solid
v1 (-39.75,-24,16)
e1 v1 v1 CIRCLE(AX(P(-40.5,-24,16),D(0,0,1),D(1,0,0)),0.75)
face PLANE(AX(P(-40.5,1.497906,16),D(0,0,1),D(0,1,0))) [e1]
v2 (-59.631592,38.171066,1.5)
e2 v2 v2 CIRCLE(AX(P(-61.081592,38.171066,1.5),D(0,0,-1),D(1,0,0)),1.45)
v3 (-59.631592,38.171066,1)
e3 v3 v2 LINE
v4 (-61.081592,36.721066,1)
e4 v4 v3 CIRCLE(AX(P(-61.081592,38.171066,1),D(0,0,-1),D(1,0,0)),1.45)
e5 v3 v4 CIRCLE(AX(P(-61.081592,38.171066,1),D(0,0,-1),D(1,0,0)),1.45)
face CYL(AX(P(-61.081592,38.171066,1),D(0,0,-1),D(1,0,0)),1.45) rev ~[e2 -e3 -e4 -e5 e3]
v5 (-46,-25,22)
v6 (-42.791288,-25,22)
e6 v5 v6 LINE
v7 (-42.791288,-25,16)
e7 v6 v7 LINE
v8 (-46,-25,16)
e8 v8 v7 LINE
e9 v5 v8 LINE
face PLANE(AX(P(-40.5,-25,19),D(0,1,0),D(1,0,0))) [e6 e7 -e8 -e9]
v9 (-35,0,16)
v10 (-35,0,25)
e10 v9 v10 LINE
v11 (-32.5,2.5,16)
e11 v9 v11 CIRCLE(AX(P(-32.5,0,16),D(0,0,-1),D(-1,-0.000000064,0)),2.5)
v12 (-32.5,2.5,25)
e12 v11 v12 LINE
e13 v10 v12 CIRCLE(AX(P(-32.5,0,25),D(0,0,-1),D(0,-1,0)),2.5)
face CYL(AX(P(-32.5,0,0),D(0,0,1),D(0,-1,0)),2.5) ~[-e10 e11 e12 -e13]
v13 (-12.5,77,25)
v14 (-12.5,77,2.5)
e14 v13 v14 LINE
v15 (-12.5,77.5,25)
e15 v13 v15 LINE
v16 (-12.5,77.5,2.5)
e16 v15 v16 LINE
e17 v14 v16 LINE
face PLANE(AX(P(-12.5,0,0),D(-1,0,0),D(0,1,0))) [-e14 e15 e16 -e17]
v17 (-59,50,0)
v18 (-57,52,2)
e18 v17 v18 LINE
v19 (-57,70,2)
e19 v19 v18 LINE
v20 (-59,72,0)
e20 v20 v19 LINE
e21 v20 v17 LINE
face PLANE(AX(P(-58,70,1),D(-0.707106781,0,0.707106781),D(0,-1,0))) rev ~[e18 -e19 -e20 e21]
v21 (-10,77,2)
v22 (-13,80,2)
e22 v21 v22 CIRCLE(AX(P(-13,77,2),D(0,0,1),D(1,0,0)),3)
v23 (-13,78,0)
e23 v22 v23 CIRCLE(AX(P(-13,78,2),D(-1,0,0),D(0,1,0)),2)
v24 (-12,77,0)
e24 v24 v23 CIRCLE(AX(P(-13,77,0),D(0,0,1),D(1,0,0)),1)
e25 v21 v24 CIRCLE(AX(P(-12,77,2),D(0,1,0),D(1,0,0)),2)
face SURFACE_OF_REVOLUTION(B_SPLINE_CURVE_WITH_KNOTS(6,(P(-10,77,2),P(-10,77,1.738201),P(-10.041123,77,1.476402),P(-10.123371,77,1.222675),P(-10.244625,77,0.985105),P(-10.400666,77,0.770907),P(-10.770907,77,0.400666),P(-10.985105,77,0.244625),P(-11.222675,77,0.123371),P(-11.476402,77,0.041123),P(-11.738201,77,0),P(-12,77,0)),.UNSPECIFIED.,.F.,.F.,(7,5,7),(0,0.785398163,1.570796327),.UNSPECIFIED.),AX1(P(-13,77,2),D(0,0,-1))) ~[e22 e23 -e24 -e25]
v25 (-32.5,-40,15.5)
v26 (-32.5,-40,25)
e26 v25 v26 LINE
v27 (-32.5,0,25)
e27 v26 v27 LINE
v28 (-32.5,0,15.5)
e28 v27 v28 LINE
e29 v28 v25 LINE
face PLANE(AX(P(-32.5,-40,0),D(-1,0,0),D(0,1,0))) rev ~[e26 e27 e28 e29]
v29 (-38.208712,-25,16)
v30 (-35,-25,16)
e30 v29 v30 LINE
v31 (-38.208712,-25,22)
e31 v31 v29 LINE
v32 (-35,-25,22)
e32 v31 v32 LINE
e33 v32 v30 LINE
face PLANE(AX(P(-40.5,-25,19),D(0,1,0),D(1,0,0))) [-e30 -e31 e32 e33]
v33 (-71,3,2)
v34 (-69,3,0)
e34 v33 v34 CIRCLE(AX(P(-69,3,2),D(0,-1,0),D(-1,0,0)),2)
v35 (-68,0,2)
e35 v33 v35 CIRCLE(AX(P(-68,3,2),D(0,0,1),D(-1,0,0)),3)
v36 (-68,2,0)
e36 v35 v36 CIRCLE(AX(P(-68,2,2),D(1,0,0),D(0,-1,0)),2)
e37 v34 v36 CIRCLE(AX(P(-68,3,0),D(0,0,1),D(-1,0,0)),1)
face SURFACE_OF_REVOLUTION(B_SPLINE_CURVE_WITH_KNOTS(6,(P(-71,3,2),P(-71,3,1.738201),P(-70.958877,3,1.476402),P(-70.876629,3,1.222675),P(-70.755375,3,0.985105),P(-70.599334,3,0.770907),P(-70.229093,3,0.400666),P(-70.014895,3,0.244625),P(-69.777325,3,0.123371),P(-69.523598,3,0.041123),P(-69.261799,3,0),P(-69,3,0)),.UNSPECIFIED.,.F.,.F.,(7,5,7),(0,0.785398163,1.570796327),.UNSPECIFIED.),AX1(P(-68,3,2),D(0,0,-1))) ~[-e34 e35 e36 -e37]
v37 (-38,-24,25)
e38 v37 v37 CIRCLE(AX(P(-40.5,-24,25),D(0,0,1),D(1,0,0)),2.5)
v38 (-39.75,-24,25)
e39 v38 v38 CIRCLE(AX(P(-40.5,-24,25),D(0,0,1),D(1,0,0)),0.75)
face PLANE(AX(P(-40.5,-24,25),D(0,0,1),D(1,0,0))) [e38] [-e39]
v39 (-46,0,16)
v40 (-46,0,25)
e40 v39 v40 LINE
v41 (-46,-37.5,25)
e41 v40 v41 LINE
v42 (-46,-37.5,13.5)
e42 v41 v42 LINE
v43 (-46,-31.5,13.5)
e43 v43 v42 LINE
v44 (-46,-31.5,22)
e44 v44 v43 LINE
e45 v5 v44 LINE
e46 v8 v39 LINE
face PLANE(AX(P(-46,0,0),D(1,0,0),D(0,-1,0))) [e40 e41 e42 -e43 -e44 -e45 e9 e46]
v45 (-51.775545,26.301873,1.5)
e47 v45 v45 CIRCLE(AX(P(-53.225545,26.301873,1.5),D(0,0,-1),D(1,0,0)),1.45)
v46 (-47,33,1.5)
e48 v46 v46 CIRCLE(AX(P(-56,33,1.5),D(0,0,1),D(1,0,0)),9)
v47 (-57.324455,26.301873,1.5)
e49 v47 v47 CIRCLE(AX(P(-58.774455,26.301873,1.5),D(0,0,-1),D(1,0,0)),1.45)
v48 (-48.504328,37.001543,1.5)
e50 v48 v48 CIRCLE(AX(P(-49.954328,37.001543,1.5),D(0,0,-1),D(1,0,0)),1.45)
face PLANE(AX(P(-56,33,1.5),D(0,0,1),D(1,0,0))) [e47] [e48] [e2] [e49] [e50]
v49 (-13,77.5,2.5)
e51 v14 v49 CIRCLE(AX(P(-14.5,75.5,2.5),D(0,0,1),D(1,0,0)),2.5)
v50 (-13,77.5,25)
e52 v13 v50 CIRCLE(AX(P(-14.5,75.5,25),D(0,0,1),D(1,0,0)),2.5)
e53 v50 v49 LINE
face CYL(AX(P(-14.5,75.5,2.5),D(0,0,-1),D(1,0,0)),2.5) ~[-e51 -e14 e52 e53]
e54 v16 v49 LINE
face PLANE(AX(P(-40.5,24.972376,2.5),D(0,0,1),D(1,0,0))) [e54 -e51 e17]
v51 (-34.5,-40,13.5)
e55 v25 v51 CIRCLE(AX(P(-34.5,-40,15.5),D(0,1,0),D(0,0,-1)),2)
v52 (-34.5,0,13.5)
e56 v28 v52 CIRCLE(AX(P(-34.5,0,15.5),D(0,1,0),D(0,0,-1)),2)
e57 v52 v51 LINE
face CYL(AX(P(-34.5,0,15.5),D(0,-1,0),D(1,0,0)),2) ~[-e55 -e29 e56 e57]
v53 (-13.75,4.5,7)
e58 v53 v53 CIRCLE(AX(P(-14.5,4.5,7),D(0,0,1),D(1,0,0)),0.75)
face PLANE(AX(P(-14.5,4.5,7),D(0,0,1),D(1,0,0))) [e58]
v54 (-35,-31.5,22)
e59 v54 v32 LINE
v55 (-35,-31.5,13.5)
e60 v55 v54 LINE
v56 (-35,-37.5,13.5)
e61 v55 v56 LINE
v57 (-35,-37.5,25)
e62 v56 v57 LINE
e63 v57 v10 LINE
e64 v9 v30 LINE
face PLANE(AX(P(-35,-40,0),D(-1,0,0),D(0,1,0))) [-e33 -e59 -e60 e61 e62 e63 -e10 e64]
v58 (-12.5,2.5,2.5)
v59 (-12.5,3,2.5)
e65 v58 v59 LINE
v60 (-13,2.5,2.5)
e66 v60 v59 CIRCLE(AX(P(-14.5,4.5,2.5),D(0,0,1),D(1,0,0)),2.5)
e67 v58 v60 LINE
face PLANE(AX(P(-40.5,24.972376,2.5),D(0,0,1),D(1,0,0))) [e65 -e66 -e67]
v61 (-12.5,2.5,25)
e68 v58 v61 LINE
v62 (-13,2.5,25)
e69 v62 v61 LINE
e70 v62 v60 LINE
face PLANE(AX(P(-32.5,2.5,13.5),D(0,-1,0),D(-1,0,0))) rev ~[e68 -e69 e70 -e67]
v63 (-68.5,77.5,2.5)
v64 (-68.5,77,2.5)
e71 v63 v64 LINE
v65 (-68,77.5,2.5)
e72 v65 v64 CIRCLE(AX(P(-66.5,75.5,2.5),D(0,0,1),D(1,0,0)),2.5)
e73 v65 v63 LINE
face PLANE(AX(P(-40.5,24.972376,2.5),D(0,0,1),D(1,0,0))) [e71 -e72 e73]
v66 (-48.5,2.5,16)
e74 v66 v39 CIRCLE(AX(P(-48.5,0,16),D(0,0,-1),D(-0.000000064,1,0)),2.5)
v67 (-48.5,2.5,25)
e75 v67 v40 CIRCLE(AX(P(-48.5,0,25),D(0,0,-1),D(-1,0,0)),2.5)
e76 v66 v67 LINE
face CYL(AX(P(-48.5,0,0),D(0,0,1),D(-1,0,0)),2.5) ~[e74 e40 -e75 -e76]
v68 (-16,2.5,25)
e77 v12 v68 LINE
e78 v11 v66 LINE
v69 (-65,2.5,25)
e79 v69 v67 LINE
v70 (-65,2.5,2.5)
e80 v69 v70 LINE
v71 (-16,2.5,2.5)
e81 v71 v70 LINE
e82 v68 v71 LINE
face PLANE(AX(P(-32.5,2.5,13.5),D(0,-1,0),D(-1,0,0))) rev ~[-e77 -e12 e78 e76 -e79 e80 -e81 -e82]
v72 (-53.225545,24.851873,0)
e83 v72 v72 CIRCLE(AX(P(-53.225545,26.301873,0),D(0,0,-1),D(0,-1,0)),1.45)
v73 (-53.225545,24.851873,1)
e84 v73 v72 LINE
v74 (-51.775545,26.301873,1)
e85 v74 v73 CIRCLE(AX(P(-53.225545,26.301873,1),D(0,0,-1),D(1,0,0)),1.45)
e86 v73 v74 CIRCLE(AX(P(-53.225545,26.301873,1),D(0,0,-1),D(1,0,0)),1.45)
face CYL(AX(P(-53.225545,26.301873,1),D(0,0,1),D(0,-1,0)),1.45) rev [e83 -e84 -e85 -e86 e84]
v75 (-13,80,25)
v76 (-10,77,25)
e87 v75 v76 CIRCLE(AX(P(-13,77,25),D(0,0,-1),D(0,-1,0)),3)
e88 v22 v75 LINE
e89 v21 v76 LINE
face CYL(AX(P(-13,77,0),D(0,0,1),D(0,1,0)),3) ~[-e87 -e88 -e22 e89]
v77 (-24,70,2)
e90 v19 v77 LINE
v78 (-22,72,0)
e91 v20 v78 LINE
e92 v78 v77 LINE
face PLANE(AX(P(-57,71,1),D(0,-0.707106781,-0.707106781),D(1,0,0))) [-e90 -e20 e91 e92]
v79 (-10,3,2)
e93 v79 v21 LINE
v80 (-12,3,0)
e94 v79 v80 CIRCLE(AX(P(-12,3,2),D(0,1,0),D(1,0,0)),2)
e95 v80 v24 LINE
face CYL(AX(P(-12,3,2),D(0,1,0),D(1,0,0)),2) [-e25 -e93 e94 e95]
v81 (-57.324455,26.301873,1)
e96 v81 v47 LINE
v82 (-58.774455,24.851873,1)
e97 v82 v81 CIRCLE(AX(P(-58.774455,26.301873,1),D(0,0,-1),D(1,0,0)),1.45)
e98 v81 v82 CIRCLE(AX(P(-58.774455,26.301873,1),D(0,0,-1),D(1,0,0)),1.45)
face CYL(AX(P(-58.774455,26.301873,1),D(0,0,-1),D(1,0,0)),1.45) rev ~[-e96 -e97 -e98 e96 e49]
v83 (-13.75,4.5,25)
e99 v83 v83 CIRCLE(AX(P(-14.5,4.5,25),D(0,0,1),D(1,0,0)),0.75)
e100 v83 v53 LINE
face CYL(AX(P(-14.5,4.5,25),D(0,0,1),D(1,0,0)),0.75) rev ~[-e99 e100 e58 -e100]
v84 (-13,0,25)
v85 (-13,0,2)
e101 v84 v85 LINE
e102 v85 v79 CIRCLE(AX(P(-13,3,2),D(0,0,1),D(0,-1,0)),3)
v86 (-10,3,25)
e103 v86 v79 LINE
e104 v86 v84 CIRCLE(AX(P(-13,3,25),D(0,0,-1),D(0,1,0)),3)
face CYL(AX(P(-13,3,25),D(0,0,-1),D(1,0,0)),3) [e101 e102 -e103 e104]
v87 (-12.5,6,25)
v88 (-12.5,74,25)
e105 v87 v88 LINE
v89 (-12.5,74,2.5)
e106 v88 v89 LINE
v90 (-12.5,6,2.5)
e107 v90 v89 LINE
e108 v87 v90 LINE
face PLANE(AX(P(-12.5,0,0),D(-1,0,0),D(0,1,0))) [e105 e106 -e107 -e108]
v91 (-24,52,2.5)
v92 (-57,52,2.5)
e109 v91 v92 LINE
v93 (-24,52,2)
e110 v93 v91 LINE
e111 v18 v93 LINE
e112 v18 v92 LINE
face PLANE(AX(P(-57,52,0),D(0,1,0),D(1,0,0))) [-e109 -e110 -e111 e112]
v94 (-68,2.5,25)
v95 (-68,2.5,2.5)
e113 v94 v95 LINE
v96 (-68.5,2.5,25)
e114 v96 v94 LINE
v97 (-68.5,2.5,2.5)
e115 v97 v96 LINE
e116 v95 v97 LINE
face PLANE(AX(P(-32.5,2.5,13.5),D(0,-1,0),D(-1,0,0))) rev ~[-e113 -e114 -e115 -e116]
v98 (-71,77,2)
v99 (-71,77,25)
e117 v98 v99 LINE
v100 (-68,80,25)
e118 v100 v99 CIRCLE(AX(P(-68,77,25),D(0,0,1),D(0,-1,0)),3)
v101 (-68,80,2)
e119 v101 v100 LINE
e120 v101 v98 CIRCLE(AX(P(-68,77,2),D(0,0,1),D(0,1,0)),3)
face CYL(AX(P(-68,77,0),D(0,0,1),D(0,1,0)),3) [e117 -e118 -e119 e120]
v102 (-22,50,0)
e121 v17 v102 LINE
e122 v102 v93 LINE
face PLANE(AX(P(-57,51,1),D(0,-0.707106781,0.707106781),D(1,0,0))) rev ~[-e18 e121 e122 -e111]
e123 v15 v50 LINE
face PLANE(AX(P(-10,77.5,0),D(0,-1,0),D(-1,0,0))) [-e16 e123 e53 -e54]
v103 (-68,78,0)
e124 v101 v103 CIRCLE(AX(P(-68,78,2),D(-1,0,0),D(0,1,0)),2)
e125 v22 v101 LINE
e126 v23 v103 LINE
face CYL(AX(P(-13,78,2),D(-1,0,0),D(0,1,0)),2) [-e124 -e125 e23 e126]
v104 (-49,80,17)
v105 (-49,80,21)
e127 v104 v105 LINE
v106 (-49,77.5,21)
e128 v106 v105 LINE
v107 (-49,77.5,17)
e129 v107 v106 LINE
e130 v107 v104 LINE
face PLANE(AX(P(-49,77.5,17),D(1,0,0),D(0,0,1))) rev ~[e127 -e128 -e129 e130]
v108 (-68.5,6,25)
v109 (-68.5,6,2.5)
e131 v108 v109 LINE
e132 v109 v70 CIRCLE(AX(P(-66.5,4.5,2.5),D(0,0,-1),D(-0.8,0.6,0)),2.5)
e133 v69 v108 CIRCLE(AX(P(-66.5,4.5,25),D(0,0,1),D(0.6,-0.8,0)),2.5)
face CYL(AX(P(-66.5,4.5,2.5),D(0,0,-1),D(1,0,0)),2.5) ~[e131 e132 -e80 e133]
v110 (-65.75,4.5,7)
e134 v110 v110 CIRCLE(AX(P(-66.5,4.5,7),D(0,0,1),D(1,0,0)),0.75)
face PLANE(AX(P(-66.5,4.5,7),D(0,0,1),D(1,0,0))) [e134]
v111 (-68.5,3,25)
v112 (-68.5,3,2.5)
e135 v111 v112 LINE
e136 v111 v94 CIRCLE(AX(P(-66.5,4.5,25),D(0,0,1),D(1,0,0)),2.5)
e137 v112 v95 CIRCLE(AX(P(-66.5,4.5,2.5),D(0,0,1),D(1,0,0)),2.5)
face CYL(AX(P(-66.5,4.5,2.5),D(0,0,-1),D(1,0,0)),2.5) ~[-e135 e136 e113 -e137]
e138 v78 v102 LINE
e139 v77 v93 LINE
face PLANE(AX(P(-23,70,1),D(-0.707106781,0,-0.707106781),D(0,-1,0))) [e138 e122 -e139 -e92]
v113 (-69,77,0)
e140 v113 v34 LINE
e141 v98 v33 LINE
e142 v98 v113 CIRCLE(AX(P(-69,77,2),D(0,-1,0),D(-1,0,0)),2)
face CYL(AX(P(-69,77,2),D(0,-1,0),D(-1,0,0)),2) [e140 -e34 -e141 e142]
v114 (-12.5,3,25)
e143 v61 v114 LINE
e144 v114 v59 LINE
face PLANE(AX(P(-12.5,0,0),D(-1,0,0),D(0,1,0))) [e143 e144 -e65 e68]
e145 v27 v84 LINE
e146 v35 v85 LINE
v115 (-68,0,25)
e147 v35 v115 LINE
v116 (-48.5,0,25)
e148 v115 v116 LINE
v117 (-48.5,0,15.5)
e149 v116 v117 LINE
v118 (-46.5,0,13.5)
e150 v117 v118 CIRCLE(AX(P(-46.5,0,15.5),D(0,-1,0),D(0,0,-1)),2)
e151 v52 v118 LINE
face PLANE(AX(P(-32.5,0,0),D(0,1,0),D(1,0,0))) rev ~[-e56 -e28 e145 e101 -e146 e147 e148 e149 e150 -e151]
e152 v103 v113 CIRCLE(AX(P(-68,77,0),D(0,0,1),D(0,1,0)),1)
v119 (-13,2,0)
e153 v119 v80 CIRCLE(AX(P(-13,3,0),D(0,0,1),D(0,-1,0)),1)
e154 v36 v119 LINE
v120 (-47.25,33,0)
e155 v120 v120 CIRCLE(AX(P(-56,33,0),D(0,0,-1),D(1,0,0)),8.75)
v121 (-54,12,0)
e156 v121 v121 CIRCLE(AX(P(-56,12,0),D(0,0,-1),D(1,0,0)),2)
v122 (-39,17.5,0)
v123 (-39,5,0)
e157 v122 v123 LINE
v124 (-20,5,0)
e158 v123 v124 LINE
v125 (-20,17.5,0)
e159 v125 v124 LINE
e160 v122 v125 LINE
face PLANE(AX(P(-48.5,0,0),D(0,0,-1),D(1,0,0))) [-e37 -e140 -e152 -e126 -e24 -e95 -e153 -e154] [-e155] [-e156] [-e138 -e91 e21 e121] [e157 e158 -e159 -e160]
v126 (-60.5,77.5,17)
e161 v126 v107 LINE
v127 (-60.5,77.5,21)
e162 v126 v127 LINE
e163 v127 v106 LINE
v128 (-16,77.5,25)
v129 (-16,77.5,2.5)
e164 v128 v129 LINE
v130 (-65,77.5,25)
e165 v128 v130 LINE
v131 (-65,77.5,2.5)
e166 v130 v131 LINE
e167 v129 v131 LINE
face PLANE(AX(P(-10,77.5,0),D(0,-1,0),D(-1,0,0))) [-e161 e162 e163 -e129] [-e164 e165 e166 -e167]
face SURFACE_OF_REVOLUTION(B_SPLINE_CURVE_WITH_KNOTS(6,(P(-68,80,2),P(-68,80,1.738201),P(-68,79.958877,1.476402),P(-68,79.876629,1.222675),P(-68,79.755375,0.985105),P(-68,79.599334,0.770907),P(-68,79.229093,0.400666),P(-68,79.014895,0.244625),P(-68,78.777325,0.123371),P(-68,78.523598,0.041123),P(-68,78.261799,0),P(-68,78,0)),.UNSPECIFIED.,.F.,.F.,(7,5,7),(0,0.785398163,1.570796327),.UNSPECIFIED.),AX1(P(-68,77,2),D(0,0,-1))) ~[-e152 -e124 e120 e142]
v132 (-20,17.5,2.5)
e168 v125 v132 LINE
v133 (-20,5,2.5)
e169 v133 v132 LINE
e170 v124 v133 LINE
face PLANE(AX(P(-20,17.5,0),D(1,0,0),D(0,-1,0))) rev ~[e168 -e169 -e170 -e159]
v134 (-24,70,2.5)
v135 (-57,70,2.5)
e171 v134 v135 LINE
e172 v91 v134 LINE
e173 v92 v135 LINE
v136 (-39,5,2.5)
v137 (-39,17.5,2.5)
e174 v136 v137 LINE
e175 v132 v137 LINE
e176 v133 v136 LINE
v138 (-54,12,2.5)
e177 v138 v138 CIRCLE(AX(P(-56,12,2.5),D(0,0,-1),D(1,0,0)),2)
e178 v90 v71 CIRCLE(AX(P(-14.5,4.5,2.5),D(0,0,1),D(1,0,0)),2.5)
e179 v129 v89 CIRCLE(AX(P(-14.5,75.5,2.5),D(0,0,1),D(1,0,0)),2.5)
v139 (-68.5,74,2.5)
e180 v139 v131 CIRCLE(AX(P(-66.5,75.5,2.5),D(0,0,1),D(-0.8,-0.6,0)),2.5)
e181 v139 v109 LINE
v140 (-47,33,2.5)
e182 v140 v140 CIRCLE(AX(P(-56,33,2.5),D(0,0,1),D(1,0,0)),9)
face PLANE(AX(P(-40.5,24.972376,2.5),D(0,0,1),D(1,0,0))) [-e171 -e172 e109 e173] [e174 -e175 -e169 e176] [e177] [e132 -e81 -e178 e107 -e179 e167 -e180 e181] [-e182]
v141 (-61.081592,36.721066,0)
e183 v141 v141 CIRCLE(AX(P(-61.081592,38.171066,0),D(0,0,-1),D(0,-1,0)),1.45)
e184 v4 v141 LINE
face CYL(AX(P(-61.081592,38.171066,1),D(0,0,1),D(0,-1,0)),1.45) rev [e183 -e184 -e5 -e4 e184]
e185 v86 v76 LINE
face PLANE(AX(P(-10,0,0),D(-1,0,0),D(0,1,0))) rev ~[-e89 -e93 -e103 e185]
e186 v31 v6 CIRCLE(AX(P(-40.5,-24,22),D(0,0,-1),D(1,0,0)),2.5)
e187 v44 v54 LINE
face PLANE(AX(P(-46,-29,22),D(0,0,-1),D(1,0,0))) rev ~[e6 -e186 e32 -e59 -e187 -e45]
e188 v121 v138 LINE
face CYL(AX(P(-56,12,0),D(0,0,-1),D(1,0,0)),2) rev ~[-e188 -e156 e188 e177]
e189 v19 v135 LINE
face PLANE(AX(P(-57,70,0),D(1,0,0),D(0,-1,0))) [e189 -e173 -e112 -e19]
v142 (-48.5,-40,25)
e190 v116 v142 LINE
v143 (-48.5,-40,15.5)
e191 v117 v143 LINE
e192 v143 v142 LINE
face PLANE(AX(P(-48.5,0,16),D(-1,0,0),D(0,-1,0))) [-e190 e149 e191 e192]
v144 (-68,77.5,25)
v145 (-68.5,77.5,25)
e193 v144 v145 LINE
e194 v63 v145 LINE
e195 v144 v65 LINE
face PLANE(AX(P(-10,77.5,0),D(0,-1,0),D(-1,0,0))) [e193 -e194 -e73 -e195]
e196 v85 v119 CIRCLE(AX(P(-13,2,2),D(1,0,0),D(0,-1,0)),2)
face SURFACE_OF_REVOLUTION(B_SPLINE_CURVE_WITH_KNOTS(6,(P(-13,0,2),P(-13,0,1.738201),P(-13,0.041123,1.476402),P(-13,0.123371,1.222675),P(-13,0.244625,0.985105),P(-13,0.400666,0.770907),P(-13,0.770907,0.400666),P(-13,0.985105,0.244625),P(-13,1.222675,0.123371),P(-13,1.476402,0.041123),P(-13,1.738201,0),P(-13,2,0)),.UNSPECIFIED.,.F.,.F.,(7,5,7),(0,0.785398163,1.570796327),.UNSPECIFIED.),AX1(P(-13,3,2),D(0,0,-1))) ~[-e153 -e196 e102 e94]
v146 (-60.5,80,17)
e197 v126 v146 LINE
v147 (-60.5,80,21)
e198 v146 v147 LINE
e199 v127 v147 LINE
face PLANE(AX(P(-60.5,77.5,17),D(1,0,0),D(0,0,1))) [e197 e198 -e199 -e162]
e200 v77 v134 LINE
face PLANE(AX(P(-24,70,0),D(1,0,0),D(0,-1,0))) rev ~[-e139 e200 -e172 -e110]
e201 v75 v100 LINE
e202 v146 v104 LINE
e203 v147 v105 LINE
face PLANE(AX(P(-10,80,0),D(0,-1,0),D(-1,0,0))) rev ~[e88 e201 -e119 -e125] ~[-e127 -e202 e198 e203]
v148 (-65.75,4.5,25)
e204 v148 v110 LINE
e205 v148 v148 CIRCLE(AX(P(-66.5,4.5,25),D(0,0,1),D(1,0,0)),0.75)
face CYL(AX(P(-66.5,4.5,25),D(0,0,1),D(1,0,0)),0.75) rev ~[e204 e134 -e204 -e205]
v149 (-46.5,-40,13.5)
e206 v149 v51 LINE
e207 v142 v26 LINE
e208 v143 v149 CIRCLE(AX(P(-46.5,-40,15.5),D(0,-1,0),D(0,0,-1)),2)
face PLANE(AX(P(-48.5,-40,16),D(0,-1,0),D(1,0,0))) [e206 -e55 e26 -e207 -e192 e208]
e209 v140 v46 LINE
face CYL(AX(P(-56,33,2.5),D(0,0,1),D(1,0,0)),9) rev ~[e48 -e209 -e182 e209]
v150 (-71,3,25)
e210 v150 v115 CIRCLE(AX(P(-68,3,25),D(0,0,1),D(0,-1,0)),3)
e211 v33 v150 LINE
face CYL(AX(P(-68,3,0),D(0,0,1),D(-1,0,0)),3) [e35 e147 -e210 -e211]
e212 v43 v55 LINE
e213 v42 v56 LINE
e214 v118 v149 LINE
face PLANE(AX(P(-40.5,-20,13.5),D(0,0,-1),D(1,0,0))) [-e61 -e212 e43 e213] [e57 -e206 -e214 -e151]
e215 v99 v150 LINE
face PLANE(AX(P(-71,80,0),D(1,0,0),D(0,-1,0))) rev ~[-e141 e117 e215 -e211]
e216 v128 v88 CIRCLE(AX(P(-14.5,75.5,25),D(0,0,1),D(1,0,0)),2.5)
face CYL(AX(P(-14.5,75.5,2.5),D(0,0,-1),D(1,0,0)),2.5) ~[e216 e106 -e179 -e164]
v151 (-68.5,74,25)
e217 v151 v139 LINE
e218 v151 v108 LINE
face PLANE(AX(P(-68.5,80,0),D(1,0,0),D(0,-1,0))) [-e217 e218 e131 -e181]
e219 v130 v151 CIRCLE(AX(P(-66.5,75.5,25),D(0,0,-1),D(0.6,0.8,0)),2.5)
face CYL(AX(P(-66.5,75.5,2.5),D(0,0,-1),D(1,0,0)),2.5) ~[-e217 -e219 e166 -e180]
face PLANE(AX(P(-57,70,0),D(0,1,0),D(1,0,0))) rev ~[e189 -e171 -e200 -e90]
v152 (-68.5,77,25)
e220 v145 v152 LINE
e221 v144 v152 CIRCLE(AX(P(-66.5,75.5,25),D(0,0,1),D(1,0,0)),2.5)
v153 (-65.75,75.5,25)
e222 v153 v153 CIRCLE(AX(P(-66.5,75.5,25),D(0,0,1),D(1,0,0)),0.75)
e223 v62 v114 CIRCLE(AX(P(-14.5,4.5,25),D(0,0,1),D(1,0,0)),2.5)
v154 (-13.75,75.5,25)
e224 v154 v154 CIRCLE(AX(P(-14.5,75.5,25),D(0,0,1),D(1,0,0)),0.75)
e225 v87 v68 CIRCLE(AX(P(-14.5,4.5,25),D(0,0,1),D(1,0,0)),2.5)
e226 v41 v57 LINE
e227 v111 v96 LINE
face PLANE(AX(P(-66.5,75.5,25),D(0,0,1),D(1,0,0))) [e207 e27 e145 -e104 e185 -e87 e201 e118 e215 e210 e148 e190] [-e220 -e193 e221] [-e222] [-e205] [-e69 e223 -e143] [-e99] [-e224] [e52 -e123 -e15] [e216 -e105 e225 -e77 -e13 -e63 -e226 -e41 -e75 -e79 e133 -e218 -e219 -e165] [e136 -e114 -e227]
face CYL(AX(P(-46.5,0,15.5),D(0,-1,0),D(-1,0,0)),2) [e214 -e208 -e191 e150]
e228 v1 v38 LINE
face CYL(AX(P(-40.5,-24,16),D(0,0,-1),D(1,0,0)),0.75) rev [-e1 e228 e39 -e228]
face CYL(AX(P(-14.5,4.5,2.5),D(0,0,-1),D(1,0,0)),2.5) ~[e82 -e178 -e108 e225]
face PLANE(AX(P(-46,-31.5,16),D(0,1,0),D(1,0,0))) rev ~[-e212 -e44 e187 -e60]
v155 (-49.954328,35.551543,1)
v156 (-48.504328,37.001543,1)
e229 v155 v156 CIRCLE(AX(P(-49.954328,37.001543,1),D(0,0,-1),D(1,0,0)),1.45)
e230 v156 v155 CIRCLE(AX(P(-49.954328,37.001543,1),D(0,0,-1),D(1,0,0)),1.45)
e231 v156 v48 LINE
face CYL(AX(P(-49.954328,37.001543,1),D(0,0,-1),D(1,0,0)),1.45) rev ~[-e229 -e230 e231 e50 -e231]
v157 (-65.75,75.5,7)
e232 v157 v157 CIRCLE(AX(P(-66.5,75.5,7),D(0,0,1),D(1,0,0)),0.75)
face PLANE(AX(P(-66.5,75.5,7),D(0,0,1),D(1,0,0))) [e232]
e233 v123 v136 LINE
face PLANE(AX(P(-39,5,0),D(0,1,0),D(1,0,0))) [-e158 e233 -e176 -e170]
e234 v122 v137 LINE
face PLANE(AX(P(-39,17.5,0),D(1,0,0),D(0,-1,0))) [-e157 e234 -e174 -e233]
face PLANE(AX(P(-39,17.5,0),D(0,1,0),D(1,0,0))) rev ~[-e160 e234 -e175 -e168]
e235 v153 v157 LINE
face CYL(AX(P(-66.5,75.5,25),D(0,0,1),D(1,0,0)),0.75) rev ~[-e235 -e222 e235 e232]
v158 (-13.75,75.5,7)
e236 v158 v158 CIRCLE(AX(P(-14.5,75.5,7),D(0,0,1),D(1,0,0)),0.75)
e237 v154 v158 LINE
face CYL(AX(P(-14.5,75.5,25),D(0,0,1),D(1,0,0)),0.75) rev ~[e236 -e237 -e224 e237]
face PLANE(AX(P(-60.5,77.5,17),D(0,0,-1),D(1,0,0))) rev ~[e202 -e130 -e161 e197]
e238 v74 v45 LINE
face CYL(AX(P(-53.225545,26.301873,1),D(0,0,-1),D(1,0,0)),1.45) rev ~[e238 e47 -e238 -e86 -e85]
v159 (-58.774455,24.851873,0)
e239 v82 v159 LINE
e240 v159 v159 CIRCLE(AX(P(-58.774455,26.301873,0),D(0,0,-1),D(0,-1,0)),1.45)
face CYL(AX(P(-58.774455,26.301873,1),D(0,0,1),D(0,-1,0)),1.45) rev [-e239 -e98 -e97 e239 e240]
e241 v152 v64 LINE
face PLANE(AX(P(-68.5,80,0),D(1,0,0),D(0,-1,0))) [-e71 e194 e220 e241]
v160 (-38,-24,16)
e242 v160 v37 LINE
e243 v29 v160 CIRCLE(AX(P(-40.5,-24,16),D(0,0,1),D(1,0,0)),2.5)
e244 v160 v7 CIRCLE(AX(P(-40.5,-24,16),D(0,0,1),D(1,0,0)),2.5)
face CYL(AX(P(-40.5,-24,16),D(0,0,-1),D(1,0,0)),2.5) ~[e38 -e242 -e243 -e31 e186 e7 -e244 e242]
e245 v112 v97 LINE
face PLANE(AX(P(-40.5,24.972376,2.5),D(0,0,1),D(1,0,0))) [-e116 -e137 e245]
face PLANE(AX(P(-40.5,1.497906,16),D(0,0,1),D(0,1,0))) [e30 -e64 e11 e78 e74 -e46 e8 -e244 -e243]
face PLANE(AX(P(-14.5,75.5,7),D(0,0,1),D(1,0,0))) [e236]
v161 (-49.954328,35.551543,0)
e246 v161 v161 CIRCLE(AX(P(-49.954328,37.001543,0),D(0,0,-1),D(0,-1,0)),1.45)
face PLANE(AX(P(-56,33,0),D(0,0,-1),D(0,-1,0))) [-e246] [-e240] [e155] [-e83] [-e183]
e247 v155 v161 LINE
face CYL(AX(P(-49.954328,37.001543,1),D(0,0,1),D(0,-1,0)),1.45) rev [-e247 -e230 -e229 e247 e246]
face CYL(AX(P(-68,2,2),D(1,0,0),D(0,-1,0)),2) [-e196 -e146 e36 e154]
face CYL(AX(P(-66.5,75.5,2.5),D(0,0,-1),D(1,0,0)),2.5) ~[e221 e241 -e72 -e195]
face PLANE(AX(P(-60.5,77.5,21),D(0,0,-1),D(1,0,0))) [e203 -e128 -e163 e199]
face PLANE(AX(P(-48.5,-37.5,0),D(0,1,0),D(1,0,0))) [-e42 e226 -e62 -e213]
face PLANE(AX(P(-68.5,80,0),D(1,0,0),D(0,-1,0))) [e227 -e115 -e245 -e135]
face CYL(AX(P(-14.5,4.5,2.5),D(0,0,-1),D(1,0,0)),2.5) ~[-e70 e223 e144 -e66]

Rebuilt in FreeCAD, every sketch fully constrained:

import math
import FreeCAD as App
import Part
import Sketcher
from FreeCAD import Vector


def edges_at(feature, points):
    """Names of the edges that pass closest to the given points."""
    edges = feature.Shape.Edges
    near = lambda p: min(range(len(edges)), key=lambda i: edges[i].distToShape(Part.Vertex(*p))[0])
    return sorted({f"Edge{near(p) + 1}" for p in points})


def faces_at(feature, points):
    """Names of the faces that lie closest to the given points."""
    faces = feature.Shape.Faces
    near = lambda p: min(range(len(faces)), key=lambda i: faces[i].distToShape(Part.Vertex(*p))[0])
    return sorted({f"Face{near(p) + 1}" for p in points})

doc = App.newDocument("Part")
body = doc.addObject("PartDesign::Body", "Body")

# Sketch on XY plane
sketch1 = doc.addObject("Sketcher::SketchObject", "Sketch")
body.addObject(sketch1)
sketch1.AttachmentSupport = (doc.XY_Plane, [""])
sketch1.MapMode = "FlatFace"
sketch1.addGeometry([
    Part.LineSegment(Vector(-10, 80, 0), Vector(-71, 80, 0)),  # 0
    Part.LineSegment(Vector(-71, 80, 0), Vector(-71, 0, 0)),  # 1
    Part.LineSegment(Vector(-71, 0, 0), Vector(-48, 0, 0)),  # 2
    Part.LineSegment(Vector(-48, 0, 0), Vector(-48, -40, 0)),  # 3
    Part.LineSegment(Vector(-48, -40, 0), Vector(-32, -40, 0)),  # 4
    Part.LineSegment(Vector(-32, -40, 0), Vector(-32, 0, 0)),  # 5
    Part.LineSegment(Vector(-32, 0, 0), Vector(-10, 0, 0)),  # 6
    Part.LineSegment(Vector(-10, 0, 0), Vector(-10, 80, 0)),  # 7
], False)
sketch1.addConstraint([
    Sketcher.Constraint("Coincident", 0, 2, 1, 1),
    Sketcher.Constraint("Coincident", 1, 2, 2, 1),
    Sketcher.Constraint("Coincident", 2, 2, 3, 1),
    Sketcher.Constraint("Coincident", 3, 2, 4, 1),
    Sketcher.Constraint("Coincident", 4, 2, 5, 1),
    Sketcher.Constraint("Coincident", 5, 2, 6, 1),
    Sketcher.Constraint("Coincident", 6, 2, 7, 1),
    Sketcher.Constraint("Coincident", 7, 2, 0, 1),
    Sketcher.Constraint("Horizontal", 0),
    Sketcher.Constraint("Vertical", 1),
    Sketcher.Constraint("Horizontal", 2),
    Sketcher.Constraint("Vertical", 3),
    Sketcher.Constraint("Horizontal", 4),
    Sketcher.Constraint("Vertical", 5),
    Sketcher.Constraint("Horizontal", 6),
    Sketcher.Constraint("Vertical", 7),
    Sketcher.Constraint("PointOnObject", 1, 2, -1),
    Sketcher.Constraint("PointOnObject", 5, 2, -1),
    Sketcher.Constraint("Equal", 2, 6),
    Sketcher.Constraint("DistanceX", 0, 2, 0, 1, 61.0),
    Sketcher.Constraint("DistanceX", 4, 1, 4, 2, 16.0),
    Sketcher.Constraint("DistanceY", 1, 2, 1, 1, 80.0),
    Sketcher.Constraint("DistanceY", 3, 2, 3, 1, 40.0),
    Sketcher.Constraint("DistanceX", 0, 2, -1, 1, 71.0),
])
pad1 = doc.addObject("PartDesign::Pad", "Pad")
body.addObject(pad1)
pad1.Profile = sketch1
pad1.Length = 25
doc.recompute()

thickness = doc.addObject("PartDesign::Thickness", "Thickness")
body.addObject(thickness)
thickness.Base = (pad1, faces_at(pad1, [(-40.5, 20, 25)]))
thickness.Value = 2.5
thickness.Reversed = True
thickness.Join = "Arc"

# Sketch on XY plane
sketch2 = doc.addObject("Sketcher::SketchObject", "Sketch001")
body.addObject(sketch2)
sketch2.AttachmentSupport = (doc.XY_Plane, [""])
sketch2.MapMode = "FlatFace"
sketch2.addGeometry([
    Part.LineSegment(Vector(-57, 52, 0), Vector(-57, 70, 0)),
    Part.LineSegment(Vector(-57, 70, 0), Vector(-24, 70, 0)),
    Part.LineSegment(Vector(-24, 70, 0), Vector(-24, 52, 0)),
    Part.LineSegment(Vector(-24, 52, 0), Vector(-57, 52, 0)),
], False)
sketch2.addConstraint([
    Sketcher.Constraint("Coincident", 0, 2, 1, 1),
    Sketcher.Constraint("Coincident", 1, 2, 2, 1),
    Sketcher.Constraint("Coincident", 2, 2, 3, 1),
    Sketcher.Constraint("Coincident", 3, 2, 0, 1),
    Sketcher.Constraint("Vertical", 0),
    Sketcher.Constraint("Horizontal", 1),
    Sketcher.Constraint("Vertical", 2),
    Sketcher.Constraint("Horizontal", 3),
    Sketcher.Constraint("DistanceX", 1, 1, 1, 2, 33.0),
    Sketcher.Constraint("DistanceY", 0, 1, 0, 2, 18.0),
    Sketcher.Constraint("DistanceX", 0, 2, -1, 1, 57.0),
    Sketcher.Constraint("DistanceY", -1, 1, 0, 2, 70.0),
])
pocket1 = doc.addObject("PartDesign::Pocket", "Pocket")
body.addObject(pocket1)
pocket1.Profile = sketch2
pocket1.Length = 5
pocket1.Reversed = True
doc.recompute()

chamfer = doc.addObject("PartDesign::Chamfer", "Chamfer")
body.addObject(chamfer)
chamfer.Base = (pocket1, edges_at(pocket1, [
    (-40.5, 70, 0),
    (-57, 61, 0),
    (-40.5, 52, 0),
    (-24, 61, 0),
]))
chamfer.Size = 2

# Sketch on XY plane
sketch3 = doc.addObject("Sketcher::SketchObject", "Sketch002")
body.addObject(sketch3)
sketch3.AttachmentSupport = (doc.XY_Plane, [""])
sketch3.MapMode = "FlatFace"
sketch3.addGeometry([
    Part.LineSegment(Vector(-39, 5, 0), Vector(-39, 18, 0)),
    Part.LineSegment(Vector(-39, 18, 0), Vector(-20, 18, 0)),
    Part.LineSegment(Vector(-20, 18, 0), Vector(-20, 5, 0)),
    Part.LineSegment(Vector(-20, 5, 0), Vector(-39, 5, 0)),
], False)
sketch3.addConstraint([
    Sketcher.Constraint("Coincident", 0, 2, 1, 1),
    Sketcher.Constraint("Coincident", 1, 2, 2, 1),
    Sketcher.Constraint("Coincident", 2, 2, 3, 1),
    Sketcher.Constraint("Coincident", 3, 2, 0, 1),
    Sketcher.Constraint("Vertical", 0),
    Sketcher.Constraint("Horizontal", 1),
    Sketcher.Constraint("Vertical", 2),
    Sketcher.Constraint("Horizontal", 3),
    Sketcher.Constraint("DistanceX", 1, 1, 1, 2, 19.0),
    Sketcher.Constraint("DistanceY", 0, 1, 0, 2, 12.5),
    Sketcher.Constraint("DistanceX", 0, 2, -1, 1, 39.0),
    Sketcher.Constraint("DistanceY", -1, 1, 2, 2, 5.0),
])
pocket2 = doc.addObject("PartDesign::Pocket", "Pocket001")
body.addObject(pocket2)
pocket2.Profile = sketch3
pocket2.Length = 5
pocket2.Reversed = True

# Sketch on XY plane
sketch4 = doc.addObject("Sketcher::SketchObject", "Sketch003")
body.addObject(sketch4)
sketch4.AttachmentSupport = (doc.XY_Plane, [""])
sketch4.MapMode = "FlatFace"
sketch4.addGeometry(Part.Circle(Vector(-56, 12, 0), Vector(0, 0, 1), 2), False)
sketch4.addConstraint([
    Sketcher.Constraint("Diameter", 0, 4.0),
    Sketcher.Constraint("DistanceX", 0, 3, -1, 1, 56.0),
    Sketcher.Constraint("DistanceY", -1, 1, 0, 3, 12.0),
])
pocket3 = doc.addObject("PartDesign::Pocket", "Pocket002")
body.addObject(pocket3)
pocket3.Profile = sketch4
pocket3.Length = 5
pocket3.Reversed = True

# Sketch on XZ plane
sketch5 = doc.addObject("Sketcher::SketchObject", "Sketch004")
body.addObject(sketch5)
sketch5.AttachmentSupport = (doc.XZ_Plane, [""])
sketch5.MapMode = "FlatFace"
sketch5.AttachmentOffset = App.Placement(Vector(0, 0, -77.5), App.Rotation())
sketch5.addGeometry([
    Part.LineSegment(Vector(-60.5, 21, 0), Vector(-60.5, 17, 0)),
    Part.LineSegment(Vector(-60.5, 17, 0), Vector(-49, 17, 0)),
    Part.LineSegment(Vector(-49, 17, 0), Vector(-49, 21, 0)),
    Part.LineSegment(Vector(-49, 21, 0), Vector(-60.5, 21, 0)),
], False)
sketch5.addConstraint([
    Sketcher.Constraint("Coincident", 0, 2, 1, 1),
    Sketcher.Constraint("Coincident", 1, 2, 2, 1),
    Sketcher.Constraint("Coincident", 2, 2, 3, 1),
    Sketcher.Constraint("Coincident", 3, 2, 0, 1),
    Sketcher.Constraint("Vertical", 0),
    Sketcher.Constraint("Horizontal", 1),
    Sketcher.Constraint("Vertical", 2),
    Sketcher.Constraint("Horizontal", 3),
    Sketcher.Constraint("DistanceY", 0, 2, 0, 1, 4.0),
    Sketcher.Constraint("DistanceX", 1, 1, 1, 2, 11.5),
    Sketcher.Constraint("DistanceY", -1, 1, 0, 2, 17.0),
    Sketcher.Constraint("DistanceX", 1, 2, -1, 1, 49.0),
])
pocket4 = doc.addObject("PartDesign::Pocket", "Pocket003")
body.addObject(pocket4)
pocket4.Profile = sketch5
pocket4.Length = 5

# Sketch on XY plane
sketch6 = doc.addObject("Sketcher::SketchObject", "Sketch005")
body.addObject(sketch6)
sketch6.AttachmentSupport = (doc.XY_Plane, [""])
sketch6.MapMode = "FlatFace"
sketch6.addGeometry(Part.Circle(Vector(-56, 33, 0), Vector(0, 0, 1), 9), False)
sketch6.addConstraint([
    Sketcher.Constraint("Diameter", 0, 17.5),
    Sketcher.Constraint("DistanceX", 0, 3, -1, 1, 56.0),
    Sketcher.Constraint("DistanceY", -1, 1, 0, 3, 33.0),
])
pocket5 = doc.addObject("PartDesign::Pocket", "Pocket004")
body.addObject(pocket5)
pocket5.Profile = sketch6
pocket5.Length = 1
pocket5.Reversed = True

# Sketch on YZ plane
sketch7 = doc.addObject("Sketcher::SketchObject", "Sketch006")
body.addObject(sketch7)
sketch7.AttachmentSupport = (doc.YZ_Plane, [""])
sketch7.MapMode = "FlatFace"
sketch7.AttachmentOffset = App.Placement(Vector(0, 0, -48.5), App.Rotation())
sketch7.addGeometry([
    Part.LineSegment(Vector(0, 16, 0), Vector(0, 0, 0)),
    Part.LineSegment(Vector(0, 0, 0), Vector(-40, 0, 0)),
    Part.LineSegment(Vector(-40, 0, 0), Vector(-40, 16, 0)),
    Part.LineSegment(Vector(-40, 16, 0), Vector(0, 16, 0)),
], False)
sketch7.addConstraint([
    Sketcher.Constraint("Coincident", 0, 2, 1, 1),
    Sketcher.Constraint("Coincident", 1, 2, 2, 1),
    Sketcher.Constraint("Coincident", 2, 2, 3, 1),
    Sketcher.Constraint("Coincident", 3, 2, 0, 1),
    Sketcher.Constraint("Vertical", 0),
    Sketcher.Constraint("Horizontal", 1),
    Sketcher.Constraint("Vertical", 2),
    Sketcher.Constraint("Horizontal", 3),
    Sketcher.Constraint("Coincident", 0, 2, -1, 1),
    Sketcher.Constraint("DistanceX", 1, 2, 1, 1, 40.0),
    Sketcher.Constraint("DistanceY", 0, 2, 0, 1, 16.0),
])
pocket6 = doc.addObject("PartDesign::Pocket", "Pocket005")
body.addObject(pocket6)
pocket6.Profile = sketch7
pocket6.Type = "ThroughAll"
pocket6.Reversed = True

# Sketch on XY plane
sketch8 = doc.addObject("Sketcher::SketchObject", "Sketch007")
body.addObject(sketch8)
sketch8.AttachmentSupport = (doc.XY_Plane, [""])
sketch8.MapMode = "FlatFace"
sketch8.AttachmentOffset = App.Placement(Vector(0, 0, 16), App.Rotation())
sketch8.addGeometry([
    Part.LineSegment(Vector(-48, -40, 0), Vector(-48, 0, 0)),
    Part.LineSegment(Vector(-48, 0, 0), Vector(-32, 0, 0)),
    Part.LineSegment(Vector(-32, 0, 0), Vector(-32, -40, 0)),
    Part.LineSegment(Vector(-32, -40, 0), Vector(-48, -40, 0)),
], False)
sketch8.addConstraint([
    Sketcher.Constraint("Coincident", 0, 2, 1, 1),
    Sketcher.Constraint("Coincident", 1, 2, 2, 1),
    Sketcher.Constraint("Coincident", 2, 2, 3, 1),
    Sketcher.Constraint("Coincident", 3, 2, 0, 1),
    Sketcher.Constraint("Vertical", 0),
    Sketcher.Constraint("Horizontal", 1),
    Sketcher.Constraint("Vertical", 2),
    Sketcher.Constraint("Horizontal", 3),
    Sketcher.Constraint("PointOnObject", 0, 2, -1),
    Sketcher.Constraint("DistanceX", 1, 1, 1, 2, 16.0),
    Sketcher.Constraint("DistanceY", 0, 1, 0, 2, 40.0),
    Sketcher.Constraint("DistanceX", 0, 2, -1, 1, 48.5),
])
pad2 = doc.addObject("PartDesign::Pad", "Pad001")
body.addObject(pad2)
pad2.Profile = sketch8
pad2.Length = 2.5
pad2.Reversed = True

# Sketch on XZ plane
sketch9 = doc.addObject("Sketcher::SketchObject", "Sketch008")
body.addObject(sketch9)
sketch9.AttachmentSupport = (doc.XZ_Plane, [""])
sketch9.MapMode = "FlatFace"
sketch9.addGeometry([
    Part.LineSegment(Vector(-48, 14, 0), Vector(-48, 0, 0)),
    Part.LineSegment(Vector(-48, 0, 0), Vector(-32, 0, 0)),
    Part.LineSegment(Vector(-32, 0, 0), Vector(-32, 14, 0)),
    Part.LineSegment(Vector(-32, 14, 0), Vector(-48, 14, 0)),
], False)
sketch9.addConstraint([
    Sketcher.Constraint("Coincident", 0, 2, 1, 1),
    Sketcher.Constraint("Coincident", 1, 2, 2, 1),
    Sketcher.Constraint("Coincident", 2, 2, 3, 1),
    Sketcher.Constraint("Coincident", 3, 2, 0, 1),
    Sketcher.Constraint("Vertical", 0),
    Sketcher.Constraint("Horizontal", 1),
    Sketcher.Constraint("Vertical", 2),
    Sketcher.Constraint("Horizontal", 3),
    Sketcher.Constraint("PointOnObject", 0, 2, -1),
    Sketcher.Constraint("DistanceX", 1, 1, 1, 2, 16.0),
    Sketcher.Constraint("DistanceY", 0, 2, 0, 1, 13.5),
    Sketcher.Constraint("DistanceX", 0, 2, -1, 1, 48.5),
])
pad3 = doc.addObject("PartDesign::Pad", "Pad002")
body.addObject(pad3)
pad3.Profile = sketch9
pad3.Length = 2.5
pad3.Reversed = True

# Sketch on XY plane
sketch10 = doc.addObject("Sketcher::SketchObject", "Sketch009")
body.addObject(sketch10)
sketch10.AttachmentSupport = (doc.XY_Plane, [""])
sketch10.MapMode = "FlatFace"
sketch10.AttachmentOffset = App.Placement(Vector(0, 0, 13.5), App.Rotation())
sketch10.addGeometry([
    Part.ArcOfCircle(Part.Circle(Vector(-48.5, 0, 0), Vector(0, 0, 1), 2.5), math.radians(0), math.radians(90)),
    Part.LineSegment(Vector(-46, 0, 0), Vector(-35, 0, 0)),
    Part.ArcOfCircle(Part.Circle(Vector(-32.5, 0, 0), Vector(0, 0, 1), 2.5), math.radians(90), math.radians(180)),
    Part.LineSegment(Vector(-32.5, 2.5, 0), Vector(-48.5, 2.5, 0)),
], False)
sketch10.addConstraint([
    Sketcher.Constraint("Coincident", 0, 1, 1, 1),
    Sketcher.Constraint("Coincident", 1, 2, 2, 2),
    Sketcher.Constraint("Tangent", 2, 1, 3, 1),
    Sketcher.Constraint("Tangent", 3, 2, 0, 2),
    Sketcher.Constraint("Horizontal", 1),
    Sketcher.Constraint("Horizontal", 3),
    Sketcher.Constraint("Equal", 0, 2),
    Sketcher.Constraint("PointOnObject", 0, 3, -1),
    Sketcher.Constraint("PointOnObject", 0, 1, -1),
    Sketcher.Constraint("Radius", 0, 2.5),
    Sketcher.Constraint("DistanceX", 1, 1, 1, 2, 11.0),
    Sketcher.Constraint("DistanceX", 0, 1, -1, 1, 46.0),
])
pad4 = doc.addObject("PartDesign::Pad", "Pad003")
body.addObject(pad4)
pad4.Profile = sketch10
pad4.Length = 2.5

# Sketch on XY plane
sketch11 = doc.addObject("Sketcher::SketchObject", "Sketch010")
body.addObject(sketch11)
sketch11.AttachmentSupport = (doc.XY_Plane, [""])
sketch11.MapMode = "FlatFace"
sketch11.AttachmentOffset = App.Placement(Vector(0, 0, 13.5), App.Rotation())
sketch11.addGeometry([
    Part.LineSegment(Vector(-46, -38, 0), Vector(-46, -32, 0)),
    Part.LineSegment(Vector(-46, -32, 0), Vector(-35, -32, 0)),
    Part.LineSegment(Vector(-35, -32, 0), Vector(-35, -38, 0)),
    Part.LineSegment(Vector(-35, -38, 0), Vector(-46, -38, 0)),
], False)
sketch11.addConstraint([
    Sketcher.Constraint("Coincident", 0, 2, 1, 1),
    Sketcher.Constraint("Coincident", 1, 2, 2, 1),
    Sketcher.Constraint("Coincident", 2, 2, 3, 1),
    Sketcher.Constraint("Coincident", 3, 2, 0, 1),
    Sketcher.Constraint("Vertical", 0),
    Sketcher.Constraint("Horizontal", 1),
    Sketcher.Constraint("Vertical", 2),
    Sketcher.Constraint("Horizontal", 3),
    Sketcher.Constraint("DistanceX", 1, 1, 1, 2, 11.0),
    Sketcher.Constraint("DistanceY", 0, 1, 0, 2, 6.0),
    Sketcher.Constraint("DistanceX", 0, 2, -1, 1, 46.0),
    Sketcher.Constraint("DistanceY", 0, 2, -1, 1, 31.5),
])
pocket7 = doc.addObject("PartDesign::Pocket", "Pocket006")
body.addObject(pocket7)
pocket7.Profile = sketch11
pocket7.Length = 2.5
pocket7.Reversed = True

# Sketch on XY plane
sketch12 = doc.addObject("Sketcher::SketchObject", "Sketch011")
body.addObject(sketch12)
sketch12.AttachmentSupport = (doc.XY_Plane, [""])
sketch12.MapMode = "FlatFace"
sketch12.AttachmentOffset = App.Placement(Vector(0, 0, 16), App.Rotation())
sketch12.addGeometry([
    Part.LineSegment(Vector(-46, -29, 0), Vector(-46, -31.5, 0)),
    Part.LineSegment(Vector(-46, -31.5, 0), Vector(-35, -31.5, 0)),
    Part.LineSegment(Vector(-35, -31.5, 0), Vector(-35, -29, 0)),
    Part.LineSegment(Vector(-35, -29, 0), Vector(-46, -29, 0)),
], False)
sketch12.addConstraint([
    Sketcher.Constraint("Coincident", 0, 2, 1, 1),
    Sketcher.Constraint("Coincident", 1, 2, 2, 1),
    Sketcher.Constraint("Coincident", 2, 2, 3, 1),
    Sketcher.Constraint("Coincident", 3, 2, 0, 1),
    Sketcher.Constraint("Vertical", 0),
    Sketcher.Constraint("Horizontal", 1),
    Sketcher.Constraint("Vertical", 2),
    Sketcher.Constraint("Horizontal", 3),
    Sketcher.Constraint("DistanceX", 1, 1, 1, 2, 11.0),
    Sketcher.Constraint("DistanceY", 0, 2, 0, 1, 2.5),
    Sketcher.Constraint("DistanceX", 0, 2, -1, 1, 46.0),
    Sketcher.Constraint("DistanceY", 2, 2, -1, 1, 29.0),
])
pad5 = doc.addObject("PartDesign::Pad", "Pad004")
body.addObject(pad5)
pad5.Profile = sketch12
pad5.Length = 6

# Sketch on XY plane
sketch13 = doc.addObject("Sketcher::SketchObject", "Sketch012")
body.addObject(sketch13)
sketch13.AttachmentSupport = (doc.XY_Plane, [""])
sketch13.MapMode = "FlatFace"
sketch13.AttachmentOffset = App.Placement(Vector(0, 0, 2.5), App.Rotation())
sketch13.addGeometry([
    Part.Circle(Vector(-66.5, 75.5, 0), Vector(0, 0, 1), 2.5),
    Part.Circle(Vector(-14.5, 75.5, 0), Vector(0, 0, 1), 2.5),
    Part.Circle(Vector(-66.5, 4.5, 0), Vector(0, 0, 1), 2.5),
    Part.Circle(Vector(-14.5, 4.5, 0), Vector(0, 0, 1), 2.5),
], False)
sketch13.addConstraint([
    Sketcher.Constraint("Equal", 0, 1),
    Sketcher.Constraint("Equal", 1, 2),
    Sketcher.Constraint("Equal", 2, 3),
    Sketcher.Constraint("Horizontal", 0, 3, 1, 3),
    Sketcher.Constraint("Horizontal", 2, 3, 3, 3),
    Sketcher.Constraint("Vertical", 0, 3, 2, 3),
    Sketcher.Constraint("Vertical", 1, 3, 3, 3),
    Sketcher.Constraint("Diameter", 0, 5.0),
    Sketcher.Constraint("DistanceX", 0, 3, 1, 3, 52.0),
    Sketcher.Constraint("DistanceY", 2, 3, 0, 3, 71.0),
    Sketcher.Constraint("DistanceX", 0, 3, -1, 1, 66.5),
    Sketcher.Constraint("DistanceY", -1, 1, 0, 3, 75.5),
])
pad6 = doc.addObject("PartDesign::Pad", "Pad005")
body.addObject(pad6)
pad6.Profile = sketch13
pad6.Length = 22.5

# Sketch on XY plane
sketch14 = doc.addObject("Sketcher::SketchObject", "Sketch013")
body.addObject(sketch14)
sketch14.AttachmentSupport = (doc.XY_Plane, [""])
sketch14.MapMode = "FlatFace"
sketch14.AttachmentOffset = App.Placement(Vector(0, 0, 25), App.Rotation())
sketch14.addGeometry([
    Part.Circle(Vector(-66.5, 4.5, 0), Vector(0, 0, 1), 0.8),
    Part.Circle(Vector(-14.5, 4.5, 0), Vector(0, 0, 1), 0.8),
    Part.Circle(Vector(-14.5, 75.5, 0), Vector(0, 0, 1), 0.8),
    Part.Circle(Vector(-66.5, 75.5, 0), Vector(0, 0, 1), 0.8),
], False)
sketch14.addConstraint([
    Sketcher.Constraint("Equal", 0, 1),
    Sketcher.Constraint("Equal", 1, 2),
    Sketcher.Constraint("Equal", 2, 3),
    Sketcher.Constraint("Horizontal", 0, 3, 1, 3),
    Sketcher.Constraint("Horizontal", 2, 3, 3, 3),
    Sketcher.Constraint("Vertical", 1, 3, 2, 3),
    Sketcher.Constraint("Vertical", 0, 3, 3, 3),
    Sketcher.Constraint("Diameter", 0, 1.5),
    Sketcher.Constraint("DistanceX", 0, 3, 1, 3, 52.0),
    Sketcher.Constraint("DistanceY", 1, 3, 2, 3, 71.0),
    Sketcher.Constraint("DistanceX", 0, 3, -1, 1, 66.5),
    Sketcher.Constraint("DistanceY", -1, 1, 0, 3, 4.5),
])
pocket8 = doc.addObject("PartDesign::Pocket", "Pocket007")
body.addObject(pocket8)
pocket8.Profile = sketch14
pocket8.Length = 18

# Sketch on XY plane
sketch15 = doc.addObject("Sketcher::SketchObject", "Sketch014")
body.addObject(sketch15)
sketch15.AttachmentSupport = (doc.XY_Plane, [""])
sketch15.MapMode = "FlatFace"
sketch15.AttachmentOffset = App.Placement(Vector(0, 0, 16), App.Rotation())
sketch15.addGeometry([
    Part.Circle(Vector(-40.5, -24, 0), Vector(0, 0, 1), 2.5),
    Part.Circle(Vector(-40.5, -24, 0), Vector(0, 0, 1), 0.8),
], False)
sketch15.addConstraint([
    Sketcher.Constraint("Coincident", 1, 3, 0, 3),
    Sketcher.Constraint("Diameter", 0, 5.0),
    Sketcher.Constraint("Diameter", 1, 1.5),
    Sketcher.Constraint("DistanceY", 0, 3, -1, 1, 24.0),
    Sketcher.Constraint("DistanceX", 0, 3, -1, 1, 40.5),
])
pad7 = doc.addObject("PartDesign::Pad", "Pad006")
body.addObject(pad7)
pad7.Profile = sketch15
pad7.Length = 9
doc.recompute()

fillet = doc.addObject("PartDesign::Fillet", "Fillet")
body.addObject(fillet)
fillet.Base = (pad7, edges_at(pad7, [(-71, 80, 12.5)]))
fillet.Radius = 3
doc.recompute()

fillet2 = doc.addObject("PartDesign::Fillet", "Fillet001")
body.addObject(fillet2)
fillet2.Base = (fillet, edges_at(fillet, [(-10, 80, 12.5)]))
fillet2.Radius = 3
doc.recompute()

fillet3 = doc.addObject("PartDesign::Fillet", "Fillet002")
body.addObject(fillet3)
fillet3.Base = (fillet2, edges_at(fillet2, [(-10, 0, 12.5), (-10, 0, 12.5), (-71, 0, 12.5)]))
fillet3.Radius = 3
doc.recompute()

fillet4 = doc.addObject("PartDesign::Fillet", "Fillet003")
body.addObject(fillet4)
fillet4.Base = (fillet3, edges_at(fillet3, [(-32.5, -20, 13.5), (-48.5, -20, 13.5)]))
fillet4.Radius = 2

# Sketch on XY plane
sketch16 = doc.addObject("Sketcher::SketchObject", "Sketch015")
body.addObject(sketch16)
sketch16.AttachmentSupport = (doc.XY_Plane, [""])
sketch16.MapMode = "FlatFace"
sketch16.AttachmentOffset = App.Placement(Vector(0, 0, 1), App.Rotation())
sketch16.addGeometry([
    Part.Circle(Vector(-58.8, 26.3, 0), Vector(0, 0, 1), 1.4),
    Part.Circle(Vector(-53.2, 26.3, 0), Vector(0, 0, 1), 1.4),
    Part.Circle(Vector(-50, 37, 0), Vector(0, 0, 1), 1.4),
    Part.Circle(Vector(-61.1, 38.2, 0), Vector(0, 0, 1), 1.4),
], False)
sketch16.addConstraint([
    Sketcher.Constraint("Equal", 0, 1),
    Sketcher.Constraint("Equal", 1, 2),
    Sketcher.Constraint("Equal", 2, 3),
    Sketcher.Constraint("Horizontal", 0, 3, 1, 3),
    Sketcher.Constraint("Diameter", 0, 2.9),
    Sketcher.Constraint("DistanceX", 0, 3, 1, 3, 5.54891),
    Sketcher.Constraint("DistanceY", 1, 3, 2, 3, 10.69967),
    Sketcher.Constraint("DistanceX", 0, 3, -1, 1, 58.774455),
    Sketcher.Constraint("DistanceY", -1, 1, 0, 3, 26.301873),
    Sketcher.Constraint("DistanceX", 2, 3, -1, 1, 49.954328),
    Sketcher.Constraint("DistanceX", 3, 3, -1, 1, 61.081592),
    Sketcher.Constraint("DistanceY", -1, 1, 3, 3, 38.171066),
])
pocket9 = doc.addObject("PartDesign::Pocket", "Pocket008")
body.addObject(pocket9)
pocket9.Profile = sketch16
pocket9.Length = 5
pocket9.Reversed = True
doc.recompute()

fillet5 = doc.addObject("PartDesign::Fillet", "Fillet004")
body.addObject(fillet5)
fillet5.Base = (pocket9, edges_at(pocket9, [(-40.5, 0, 0)]))
fillet5.Radius = 2

# Sketch on XZ plane
sketch17 = doc.addObject("Sketcher::SketchObject", "Sketch016")
body.addObject(sketch17)
sketch17.AttachmentSupport = (doc.XZ_Plane, [""])
sketch17.MapMode = "FlatFace"
sketch17.AttachmentOffset = App.Placement(Vector(0, 0, 29), App.Rotation())
sketch17.addGeometry([
    Part.LineSegment(Vector(-46, 16, 0), Vector(-46, 22, 0)),
    Part.LineSegment(Vector(-46, 22, 0), Vector(-35, 22, 0)),
    Part.LineSegment(Vector(-35, 22, 0), Vector(-35, 16, 0)),
    Part.LineSegment(Vector(-35, 16, 0), Vector(-46, 16, 0)),
], False)
sketch17.addConstraint([
    Sketcher.Constraint("Coincident", 0, 2, 1, 1),
    Sketcher.Constraint("Coincident", 1, 2, 2, 1),
    Sketcher.Constraint("Coincident", 2, 2, 3, 1),
    Sketcher.Constraint("Coincident", 3, 2, 0, 1),
    Sketcher.Constraint("Vertical", 0),
    Sketcher.Constraint("Horizontal", 1),
    Sketcher.Constraint("Vertical", 2),
    Sketcher.Constraint("Horizontal", 3),
    Sketcher.Constraint("DistanceX", 1, 1, 1, 2, 11.0),
    Sketcher.Constraint("DistanceY", 0, 1, 0, 2, 6.0),
    Sketcher.Constraint("DistanceX", 0, 2, -1, 1, 46.0),
    Sketcher.Constraint("DistanceY", -1, 1, 0, 2, 22.0),
])
pad8 = doc.addObject("PartDesign::Pad", "Pad007")
body.addObject(pad8)
pad8.Profile = sketch17
pad8.Length = 4
pad8.Reversed = True

# Sketch on XY plane
sketch18 = doc.addObject("Sketcher::SketchObject", "Sketch017")
body.addObject(sketch18)
sketch18.AttachmentSupport = (doc.XY_Plane, [""])
sketch18.MapMode = "FlatFace"
sketch18.AttachmentOffset = App.Placement(Vector(0, 0, 1), App.Rotation())
sketch18.addGeometry([
    Part.Circle(Vector(-56, 33, 0), Vector(0, 0, 1), 8.8),  # 0
    Part.Circle(Vector(-50, 37, 0), Vector(0, 0, 1), 1.4),  # 1
    Part.Circle(Vector(-53.2, 26.3, 0), Vector(0, 0, 1), 1.4),  # 2
    Part.Circle(Vector(-61.1, 38.2, 0), Vector(0, 0, 1), 1.4),  # 3
    Part.Circle(Vector(-58.8, 26.3, 0), Vector(0, 0, 1), 1.4),  # 4
], False)
sketch18.addConstraint([
    Sketcher.Constraint("Equal", 1, 2),
    Sketcher.Constraint("Equal", 2, 3),
    Sketcher.Constraint("Equal", 3, 4),
    Sketcher.Constraint("Horizontal", 2, 3, 4, 3),
    Sketcher.Constraint("Diameter", 0, 17.5),
    Sketcher.Constraint("Diameter", 1, 2.9),
    Sketcher.Constraint("DistanceX", 0, 3, -1, 1, 56.0),
    Sketcher.Constraint("DistanceY", -1, 1, 0, 3, 33.0),
    Sketcher.Constraint("DistanceY", 2, 3, 1, 3, 10.69967),
    Sketcher.Constraint("DistanceX", 4, 3, 2, 3, 5.54891),
    Sketcher.Constraint("DistanceX", 1, 3, -1, 1, 49.954328),
    Sketcher.Constraint("DistanceY", -1, 1, 1, 3, 37.001543),
    Sketcher.Constraint("DistanceX", 2, 3, -1, 1, 53.225545),
    Sketcher.Constraint("DistanceX", 3, 3, -1, 1, 61.081592),
    Sketcher.Constraint("DistanceY", -1, 1, 3, 3, 38.171066),
])
pad9 = doc.addObject("PartDesign::Pad", "Pad008")
body.addObject(pad9)
pad9.Profile = sketch18
pad9.Length = 1
pad9.Reversed = True

# Sketch on XY plane
sketch19 = doc.addObject("Sketcher::SketchObject", "Sketch018")
body.addObject(sketch19)
sketch19.AttachmentSupport = (doc.XY_Plane, [""])
sketch19.MapMode = "FlatFace"
sketch19.AttachmentOffset = App.Placement(Vector(0, 0, 2.5), App.Rotation())
sketch19.addGeometry(Part.Circle(Vector(-56, 33, 0), Vector(0, 0, 1), 9), False)
sketch19.addConstraint([
    Sketcher.Constraint("Diameter", 0, 18.0),
    Sketcher.Constraint("DistanceX", 0, 3, -1, 1, 56.0),
    Sketcher.Constraint("DistanceY", -1, 1, 0, 3, 33.0),
])
pocket10 = doc.addObject("PartDesign::Pocket", "Pocket009")
body.addObject(pocket10)
pocket10.Profile = sketch19
pocket10.Length = 1

doc.recompute()
